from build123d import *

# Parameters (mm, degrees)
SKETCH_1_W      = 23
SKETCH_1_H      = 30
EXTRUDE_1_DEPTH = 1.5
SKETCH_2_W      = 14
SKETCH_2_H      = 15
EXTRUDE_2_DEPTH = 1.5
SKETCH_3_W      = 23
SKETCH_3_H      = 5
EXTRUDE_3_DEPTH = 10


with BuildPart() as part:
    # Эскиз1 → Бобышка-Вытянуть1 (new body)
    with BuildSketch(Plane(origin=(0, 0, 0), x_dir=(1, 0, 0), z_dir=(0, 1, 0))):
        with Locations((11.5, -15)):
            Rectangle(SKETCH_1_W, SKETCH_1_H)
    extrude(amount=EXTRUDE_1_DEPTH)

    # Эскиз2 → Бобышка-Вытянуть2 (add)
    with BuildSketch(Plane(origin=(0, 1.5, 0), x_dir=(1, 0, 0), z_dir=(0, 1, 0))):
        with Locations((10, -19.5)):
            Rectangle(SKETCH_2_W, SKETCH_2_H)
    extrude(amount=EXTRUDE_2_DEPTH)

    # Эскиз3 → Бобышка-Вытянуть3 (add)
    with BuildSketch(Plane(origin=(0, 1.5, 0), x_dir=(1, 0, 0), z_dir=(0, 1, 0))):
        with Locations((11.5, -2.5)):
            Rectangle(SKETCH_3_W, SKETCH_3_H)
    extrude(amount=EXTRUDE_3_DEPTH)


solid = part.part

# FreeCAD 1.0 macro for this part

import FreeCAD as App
import Part
import Sketcher
from FreeCAD import Vector

doc = App.newDocument("Part")
params = doc.addObject("Spreadsheet::Sheet", "Params")
for row, (alias, value) in enumerate([
    ("sketch1_width", "23 mm"),
    ("sketch1_height", "30 mm"),
    ("pad1_length", "1.5 mm"),
    ("sketch2_width", "14 mm"),
    ("sketch2_height", "15 mm"),
    ("pad2_length", "1.5 mm"),
    ("sketch3_width", "23 mm"),
    ("sketch3_height", "5 mm"),
    ("pad3_length", "10 mm"),
], start=1):
    params.set(f"A{row}", alias)
    params.set(f"B{row}", "=" + value)
    params.setAlias(f"B{row}", alias)

body = doc.addObject("PartDesign::Body", "Body")

# Sketch on XZ plane
sketch1 = body.newObject("Sketcher::SketchObject", "Sketch")
sketch1.AttachmentSupport = (doc.getObject("XZ_Plane"), [""])
sketch1.MapMode = "FlatFace"
sketch1.addGeometry(Part.LineSegment(Vector(0, 0, 0), Vector(0, 30, 0)), False)
sketch1.addGeometry(Part.LineSegment(Vector(0, 30, 0), Vector(23, 30, 0)), False)
sketch1.addGeometry(Part.LineSegment(Vector(23, 30, 0), Vector(23, 0, 0)), False)
sketch1.addGeometry(Part.LineSegment(Vector(23, 0, 0), Vector(0, 0, 0)), False)
sketch1.addConstraint(Sketcher.Constraint("Coincident", 0, 2, 1, 1))
sketch1.addConstraint(Sketcher.Constraint("Coincident", 1, 2, 2, 1))
sketch1.addConstraint(Sketcher.Constraint("Coincident", 2, 2, 3, 1))
sketch1.addConstraint(Sketcher.Constraint("Coincident", 3, 2, 0, 1))
sketch1.addConstraint(Sketcher.Constraint("Vertical", 0))
sketch1.addConstraint(Sketcher.Constraint("Horizontal", 1))
sketch1.addConstraint(Sketcher.Constraint("Vertical", 2))
sketch1.addConstraint(Sketcher.Constraint("Horizontal", 3))
sketch1.addConstraint(Sketcher.Constraint("Coincident", 3, 2, -1, 1))
sketch1.addConstraint(Sketcher.Constraint("DistanceX", 1, 1, 1, 2, 23.0))
sketch1.addConstraint(Sketcher.Constraint("DistanceY", 0, 1, 0, 2, 30.0))
sketch1.setExpression("Constraints[9]", "Params.sketch1_width")
sketch1.setExpression("Constraints[10]", "Params.sketch1_height")
pad1 = body.newObject("PartDesign::Pad", "Pad")
pad1.Profile = sketch1
pad1.setExpression("Length", "Params.pad1_length")
pad1.Reversed = True

# Sketch on XZ plane
sketch2 = body.newObject("Sketcher::SketchObject", "Sketch001")
sketch2.AttachmentSupport = (doc.getObject("XZ_Plane"), [""])
sketch2.MapMode = "FlatFace"
sketch2.AttachmentOffset = App.Placement(Vector(0, 0, -1.5), App.Rotation())
sketch2.addGeometry(Part.LineSegment(Vector(3, 12, 0), Vector(3, 27, 0)), False)
sketch2.addGeometry(Part.LineSegment(Vector(3, 27, 0), Vector(17, 27, 0)), False)
sketch2.addGeometry(Part.LineSegment(Vector(17, 27, 0), Vector(17, 12, 0)), False)
sketch2.addGeometry(Part.LineSegment(Vector(17, 12, 0), Vector(3, 12, 0)), False)
sketch2.addConstraint(Sketcher.Constraint("Coincident", 0, 2, 1, 1))
sketch2.addConstraint(Sketcher.Constraint("Coincident", 1, 2, 2, 1))
sketch2.addConstraint(Sketcher.Constraint("Coincident", 2, 2, 3, 1))
sketch2.addConstraint(Sketcher.Constraint("Coincident", 3, 2, 0, 1))
sketch2.addConstraint(Sketcher.Constraint("Vertical", 0))
sketch2.addConstraint(Sketcher.Constraint("Horizontal", 1))
sketch2.addConstraint(Sketcher.Constraint("Vertical", 2))
sketch2.addConstraint(Sketcher.Constraint("Horizontal", 3))
sketch2.addConstraint(Sketcher.Constraint("DistanceX", 1, 1, 1, 2, 14.0))
sketch2.addConstraint(Sketcher.Constraint("DistanceY", 0, 1, 0, 2, 15.0))
sketch2.addConstraint(Sketcher.Constraint("DistanceX", -1, 1, 0, 2, 3.0))
sketch2.addConstraint(Sketcher.Constraint("DistanceY", -1, 1, 0, 2, 27.0))
sketch2.setExpression("Constraints[8]", "Params.sketch2_width")
sketch2.setExpression("Constraints[9]", "Params.sketch2_height")
pad2 = body.newObject("PartDesign::Pad", "Pad001")
pad2.Profile = sketch2
pad2.setExpression("Length", "Params.pad2_length")
pad2.Reversed = True

# Sketch on XZ plane
sketch3 = body.newObject("Sketcher::SketchObject", "Sketch002")
sketch3.AttachmentSupport = (doc.getObject("XZ_Plane"), [""])
sketch3.MapMode = "FlatFace"
sketch3.AttachmentOffset = App.Placement(Vector(0, 0, -1.5), App.Rotation())
sketch3.addGeometry(Part.LineSegment(Vector(0, 0, 0), Vector(0, 5, 0)), False)
sketch3.addGeometry(Part.LineSegment(Vector(0, 5, 0), Vector(23, 5, 0)), False)
sketch3.addGeometry(Part.LineSegment(Vector(23, 5, 0), Vector(23, 0, 0)), False)
sketch3.addGeometry(Part.LineSegment(Vector(23, 0, 0), Vector(0, 0, 0)), False)
sketch3.addConstraint(Sketcher.Constraint("Coincident", 0, 2, 1, 1))
sketch3.addConstraint(Sketcher.Constraint("Coincident", 1, 2, 2, 1))
sketch3.addConstraint(Sketcher.Constraint("Coincident", 2, 2, 3, 1))
sketch3.addConstraint(Sketcher.Constraint("Coincident", 3, 2, 0, 1))
sketch3.addConstraint(Sketcher.Constraint("Vertical", 0))
sketch3.addConstraint(Sketcher.Constraint("Horizontal", 1))
sketch3.addConstraint(Sketcher.Constraint("Vertical", 2))
sketch3.addConstraint(Sketcher.Constraint("Horizontal", 3))
sketch3.addConstraint(Sketcher.Constraint("Coincident", 3, 2, -1, 1))
sketch3.addConstraint(Sketcher.Constraint("DistanceX", 1, 1, 1, 2, 23.0))
sketch3.addConstraint(Sketcher.Constraint("DistanceY", 0, 1, 0, 2, 5.0))
sketch3.setExpression("Constraints[9]", "Params.sketch3_width")
sketch3.setExpression("Constraints[10]", "Params.sketch3_height")
pad3 = body.newObject("PartDesign::Pad", "Pad002")
pad3.Profile = sketch3
pad3.setExpression("Length", "Params.pad3_length")
pad3.Reversed = True

doc.recompute()
